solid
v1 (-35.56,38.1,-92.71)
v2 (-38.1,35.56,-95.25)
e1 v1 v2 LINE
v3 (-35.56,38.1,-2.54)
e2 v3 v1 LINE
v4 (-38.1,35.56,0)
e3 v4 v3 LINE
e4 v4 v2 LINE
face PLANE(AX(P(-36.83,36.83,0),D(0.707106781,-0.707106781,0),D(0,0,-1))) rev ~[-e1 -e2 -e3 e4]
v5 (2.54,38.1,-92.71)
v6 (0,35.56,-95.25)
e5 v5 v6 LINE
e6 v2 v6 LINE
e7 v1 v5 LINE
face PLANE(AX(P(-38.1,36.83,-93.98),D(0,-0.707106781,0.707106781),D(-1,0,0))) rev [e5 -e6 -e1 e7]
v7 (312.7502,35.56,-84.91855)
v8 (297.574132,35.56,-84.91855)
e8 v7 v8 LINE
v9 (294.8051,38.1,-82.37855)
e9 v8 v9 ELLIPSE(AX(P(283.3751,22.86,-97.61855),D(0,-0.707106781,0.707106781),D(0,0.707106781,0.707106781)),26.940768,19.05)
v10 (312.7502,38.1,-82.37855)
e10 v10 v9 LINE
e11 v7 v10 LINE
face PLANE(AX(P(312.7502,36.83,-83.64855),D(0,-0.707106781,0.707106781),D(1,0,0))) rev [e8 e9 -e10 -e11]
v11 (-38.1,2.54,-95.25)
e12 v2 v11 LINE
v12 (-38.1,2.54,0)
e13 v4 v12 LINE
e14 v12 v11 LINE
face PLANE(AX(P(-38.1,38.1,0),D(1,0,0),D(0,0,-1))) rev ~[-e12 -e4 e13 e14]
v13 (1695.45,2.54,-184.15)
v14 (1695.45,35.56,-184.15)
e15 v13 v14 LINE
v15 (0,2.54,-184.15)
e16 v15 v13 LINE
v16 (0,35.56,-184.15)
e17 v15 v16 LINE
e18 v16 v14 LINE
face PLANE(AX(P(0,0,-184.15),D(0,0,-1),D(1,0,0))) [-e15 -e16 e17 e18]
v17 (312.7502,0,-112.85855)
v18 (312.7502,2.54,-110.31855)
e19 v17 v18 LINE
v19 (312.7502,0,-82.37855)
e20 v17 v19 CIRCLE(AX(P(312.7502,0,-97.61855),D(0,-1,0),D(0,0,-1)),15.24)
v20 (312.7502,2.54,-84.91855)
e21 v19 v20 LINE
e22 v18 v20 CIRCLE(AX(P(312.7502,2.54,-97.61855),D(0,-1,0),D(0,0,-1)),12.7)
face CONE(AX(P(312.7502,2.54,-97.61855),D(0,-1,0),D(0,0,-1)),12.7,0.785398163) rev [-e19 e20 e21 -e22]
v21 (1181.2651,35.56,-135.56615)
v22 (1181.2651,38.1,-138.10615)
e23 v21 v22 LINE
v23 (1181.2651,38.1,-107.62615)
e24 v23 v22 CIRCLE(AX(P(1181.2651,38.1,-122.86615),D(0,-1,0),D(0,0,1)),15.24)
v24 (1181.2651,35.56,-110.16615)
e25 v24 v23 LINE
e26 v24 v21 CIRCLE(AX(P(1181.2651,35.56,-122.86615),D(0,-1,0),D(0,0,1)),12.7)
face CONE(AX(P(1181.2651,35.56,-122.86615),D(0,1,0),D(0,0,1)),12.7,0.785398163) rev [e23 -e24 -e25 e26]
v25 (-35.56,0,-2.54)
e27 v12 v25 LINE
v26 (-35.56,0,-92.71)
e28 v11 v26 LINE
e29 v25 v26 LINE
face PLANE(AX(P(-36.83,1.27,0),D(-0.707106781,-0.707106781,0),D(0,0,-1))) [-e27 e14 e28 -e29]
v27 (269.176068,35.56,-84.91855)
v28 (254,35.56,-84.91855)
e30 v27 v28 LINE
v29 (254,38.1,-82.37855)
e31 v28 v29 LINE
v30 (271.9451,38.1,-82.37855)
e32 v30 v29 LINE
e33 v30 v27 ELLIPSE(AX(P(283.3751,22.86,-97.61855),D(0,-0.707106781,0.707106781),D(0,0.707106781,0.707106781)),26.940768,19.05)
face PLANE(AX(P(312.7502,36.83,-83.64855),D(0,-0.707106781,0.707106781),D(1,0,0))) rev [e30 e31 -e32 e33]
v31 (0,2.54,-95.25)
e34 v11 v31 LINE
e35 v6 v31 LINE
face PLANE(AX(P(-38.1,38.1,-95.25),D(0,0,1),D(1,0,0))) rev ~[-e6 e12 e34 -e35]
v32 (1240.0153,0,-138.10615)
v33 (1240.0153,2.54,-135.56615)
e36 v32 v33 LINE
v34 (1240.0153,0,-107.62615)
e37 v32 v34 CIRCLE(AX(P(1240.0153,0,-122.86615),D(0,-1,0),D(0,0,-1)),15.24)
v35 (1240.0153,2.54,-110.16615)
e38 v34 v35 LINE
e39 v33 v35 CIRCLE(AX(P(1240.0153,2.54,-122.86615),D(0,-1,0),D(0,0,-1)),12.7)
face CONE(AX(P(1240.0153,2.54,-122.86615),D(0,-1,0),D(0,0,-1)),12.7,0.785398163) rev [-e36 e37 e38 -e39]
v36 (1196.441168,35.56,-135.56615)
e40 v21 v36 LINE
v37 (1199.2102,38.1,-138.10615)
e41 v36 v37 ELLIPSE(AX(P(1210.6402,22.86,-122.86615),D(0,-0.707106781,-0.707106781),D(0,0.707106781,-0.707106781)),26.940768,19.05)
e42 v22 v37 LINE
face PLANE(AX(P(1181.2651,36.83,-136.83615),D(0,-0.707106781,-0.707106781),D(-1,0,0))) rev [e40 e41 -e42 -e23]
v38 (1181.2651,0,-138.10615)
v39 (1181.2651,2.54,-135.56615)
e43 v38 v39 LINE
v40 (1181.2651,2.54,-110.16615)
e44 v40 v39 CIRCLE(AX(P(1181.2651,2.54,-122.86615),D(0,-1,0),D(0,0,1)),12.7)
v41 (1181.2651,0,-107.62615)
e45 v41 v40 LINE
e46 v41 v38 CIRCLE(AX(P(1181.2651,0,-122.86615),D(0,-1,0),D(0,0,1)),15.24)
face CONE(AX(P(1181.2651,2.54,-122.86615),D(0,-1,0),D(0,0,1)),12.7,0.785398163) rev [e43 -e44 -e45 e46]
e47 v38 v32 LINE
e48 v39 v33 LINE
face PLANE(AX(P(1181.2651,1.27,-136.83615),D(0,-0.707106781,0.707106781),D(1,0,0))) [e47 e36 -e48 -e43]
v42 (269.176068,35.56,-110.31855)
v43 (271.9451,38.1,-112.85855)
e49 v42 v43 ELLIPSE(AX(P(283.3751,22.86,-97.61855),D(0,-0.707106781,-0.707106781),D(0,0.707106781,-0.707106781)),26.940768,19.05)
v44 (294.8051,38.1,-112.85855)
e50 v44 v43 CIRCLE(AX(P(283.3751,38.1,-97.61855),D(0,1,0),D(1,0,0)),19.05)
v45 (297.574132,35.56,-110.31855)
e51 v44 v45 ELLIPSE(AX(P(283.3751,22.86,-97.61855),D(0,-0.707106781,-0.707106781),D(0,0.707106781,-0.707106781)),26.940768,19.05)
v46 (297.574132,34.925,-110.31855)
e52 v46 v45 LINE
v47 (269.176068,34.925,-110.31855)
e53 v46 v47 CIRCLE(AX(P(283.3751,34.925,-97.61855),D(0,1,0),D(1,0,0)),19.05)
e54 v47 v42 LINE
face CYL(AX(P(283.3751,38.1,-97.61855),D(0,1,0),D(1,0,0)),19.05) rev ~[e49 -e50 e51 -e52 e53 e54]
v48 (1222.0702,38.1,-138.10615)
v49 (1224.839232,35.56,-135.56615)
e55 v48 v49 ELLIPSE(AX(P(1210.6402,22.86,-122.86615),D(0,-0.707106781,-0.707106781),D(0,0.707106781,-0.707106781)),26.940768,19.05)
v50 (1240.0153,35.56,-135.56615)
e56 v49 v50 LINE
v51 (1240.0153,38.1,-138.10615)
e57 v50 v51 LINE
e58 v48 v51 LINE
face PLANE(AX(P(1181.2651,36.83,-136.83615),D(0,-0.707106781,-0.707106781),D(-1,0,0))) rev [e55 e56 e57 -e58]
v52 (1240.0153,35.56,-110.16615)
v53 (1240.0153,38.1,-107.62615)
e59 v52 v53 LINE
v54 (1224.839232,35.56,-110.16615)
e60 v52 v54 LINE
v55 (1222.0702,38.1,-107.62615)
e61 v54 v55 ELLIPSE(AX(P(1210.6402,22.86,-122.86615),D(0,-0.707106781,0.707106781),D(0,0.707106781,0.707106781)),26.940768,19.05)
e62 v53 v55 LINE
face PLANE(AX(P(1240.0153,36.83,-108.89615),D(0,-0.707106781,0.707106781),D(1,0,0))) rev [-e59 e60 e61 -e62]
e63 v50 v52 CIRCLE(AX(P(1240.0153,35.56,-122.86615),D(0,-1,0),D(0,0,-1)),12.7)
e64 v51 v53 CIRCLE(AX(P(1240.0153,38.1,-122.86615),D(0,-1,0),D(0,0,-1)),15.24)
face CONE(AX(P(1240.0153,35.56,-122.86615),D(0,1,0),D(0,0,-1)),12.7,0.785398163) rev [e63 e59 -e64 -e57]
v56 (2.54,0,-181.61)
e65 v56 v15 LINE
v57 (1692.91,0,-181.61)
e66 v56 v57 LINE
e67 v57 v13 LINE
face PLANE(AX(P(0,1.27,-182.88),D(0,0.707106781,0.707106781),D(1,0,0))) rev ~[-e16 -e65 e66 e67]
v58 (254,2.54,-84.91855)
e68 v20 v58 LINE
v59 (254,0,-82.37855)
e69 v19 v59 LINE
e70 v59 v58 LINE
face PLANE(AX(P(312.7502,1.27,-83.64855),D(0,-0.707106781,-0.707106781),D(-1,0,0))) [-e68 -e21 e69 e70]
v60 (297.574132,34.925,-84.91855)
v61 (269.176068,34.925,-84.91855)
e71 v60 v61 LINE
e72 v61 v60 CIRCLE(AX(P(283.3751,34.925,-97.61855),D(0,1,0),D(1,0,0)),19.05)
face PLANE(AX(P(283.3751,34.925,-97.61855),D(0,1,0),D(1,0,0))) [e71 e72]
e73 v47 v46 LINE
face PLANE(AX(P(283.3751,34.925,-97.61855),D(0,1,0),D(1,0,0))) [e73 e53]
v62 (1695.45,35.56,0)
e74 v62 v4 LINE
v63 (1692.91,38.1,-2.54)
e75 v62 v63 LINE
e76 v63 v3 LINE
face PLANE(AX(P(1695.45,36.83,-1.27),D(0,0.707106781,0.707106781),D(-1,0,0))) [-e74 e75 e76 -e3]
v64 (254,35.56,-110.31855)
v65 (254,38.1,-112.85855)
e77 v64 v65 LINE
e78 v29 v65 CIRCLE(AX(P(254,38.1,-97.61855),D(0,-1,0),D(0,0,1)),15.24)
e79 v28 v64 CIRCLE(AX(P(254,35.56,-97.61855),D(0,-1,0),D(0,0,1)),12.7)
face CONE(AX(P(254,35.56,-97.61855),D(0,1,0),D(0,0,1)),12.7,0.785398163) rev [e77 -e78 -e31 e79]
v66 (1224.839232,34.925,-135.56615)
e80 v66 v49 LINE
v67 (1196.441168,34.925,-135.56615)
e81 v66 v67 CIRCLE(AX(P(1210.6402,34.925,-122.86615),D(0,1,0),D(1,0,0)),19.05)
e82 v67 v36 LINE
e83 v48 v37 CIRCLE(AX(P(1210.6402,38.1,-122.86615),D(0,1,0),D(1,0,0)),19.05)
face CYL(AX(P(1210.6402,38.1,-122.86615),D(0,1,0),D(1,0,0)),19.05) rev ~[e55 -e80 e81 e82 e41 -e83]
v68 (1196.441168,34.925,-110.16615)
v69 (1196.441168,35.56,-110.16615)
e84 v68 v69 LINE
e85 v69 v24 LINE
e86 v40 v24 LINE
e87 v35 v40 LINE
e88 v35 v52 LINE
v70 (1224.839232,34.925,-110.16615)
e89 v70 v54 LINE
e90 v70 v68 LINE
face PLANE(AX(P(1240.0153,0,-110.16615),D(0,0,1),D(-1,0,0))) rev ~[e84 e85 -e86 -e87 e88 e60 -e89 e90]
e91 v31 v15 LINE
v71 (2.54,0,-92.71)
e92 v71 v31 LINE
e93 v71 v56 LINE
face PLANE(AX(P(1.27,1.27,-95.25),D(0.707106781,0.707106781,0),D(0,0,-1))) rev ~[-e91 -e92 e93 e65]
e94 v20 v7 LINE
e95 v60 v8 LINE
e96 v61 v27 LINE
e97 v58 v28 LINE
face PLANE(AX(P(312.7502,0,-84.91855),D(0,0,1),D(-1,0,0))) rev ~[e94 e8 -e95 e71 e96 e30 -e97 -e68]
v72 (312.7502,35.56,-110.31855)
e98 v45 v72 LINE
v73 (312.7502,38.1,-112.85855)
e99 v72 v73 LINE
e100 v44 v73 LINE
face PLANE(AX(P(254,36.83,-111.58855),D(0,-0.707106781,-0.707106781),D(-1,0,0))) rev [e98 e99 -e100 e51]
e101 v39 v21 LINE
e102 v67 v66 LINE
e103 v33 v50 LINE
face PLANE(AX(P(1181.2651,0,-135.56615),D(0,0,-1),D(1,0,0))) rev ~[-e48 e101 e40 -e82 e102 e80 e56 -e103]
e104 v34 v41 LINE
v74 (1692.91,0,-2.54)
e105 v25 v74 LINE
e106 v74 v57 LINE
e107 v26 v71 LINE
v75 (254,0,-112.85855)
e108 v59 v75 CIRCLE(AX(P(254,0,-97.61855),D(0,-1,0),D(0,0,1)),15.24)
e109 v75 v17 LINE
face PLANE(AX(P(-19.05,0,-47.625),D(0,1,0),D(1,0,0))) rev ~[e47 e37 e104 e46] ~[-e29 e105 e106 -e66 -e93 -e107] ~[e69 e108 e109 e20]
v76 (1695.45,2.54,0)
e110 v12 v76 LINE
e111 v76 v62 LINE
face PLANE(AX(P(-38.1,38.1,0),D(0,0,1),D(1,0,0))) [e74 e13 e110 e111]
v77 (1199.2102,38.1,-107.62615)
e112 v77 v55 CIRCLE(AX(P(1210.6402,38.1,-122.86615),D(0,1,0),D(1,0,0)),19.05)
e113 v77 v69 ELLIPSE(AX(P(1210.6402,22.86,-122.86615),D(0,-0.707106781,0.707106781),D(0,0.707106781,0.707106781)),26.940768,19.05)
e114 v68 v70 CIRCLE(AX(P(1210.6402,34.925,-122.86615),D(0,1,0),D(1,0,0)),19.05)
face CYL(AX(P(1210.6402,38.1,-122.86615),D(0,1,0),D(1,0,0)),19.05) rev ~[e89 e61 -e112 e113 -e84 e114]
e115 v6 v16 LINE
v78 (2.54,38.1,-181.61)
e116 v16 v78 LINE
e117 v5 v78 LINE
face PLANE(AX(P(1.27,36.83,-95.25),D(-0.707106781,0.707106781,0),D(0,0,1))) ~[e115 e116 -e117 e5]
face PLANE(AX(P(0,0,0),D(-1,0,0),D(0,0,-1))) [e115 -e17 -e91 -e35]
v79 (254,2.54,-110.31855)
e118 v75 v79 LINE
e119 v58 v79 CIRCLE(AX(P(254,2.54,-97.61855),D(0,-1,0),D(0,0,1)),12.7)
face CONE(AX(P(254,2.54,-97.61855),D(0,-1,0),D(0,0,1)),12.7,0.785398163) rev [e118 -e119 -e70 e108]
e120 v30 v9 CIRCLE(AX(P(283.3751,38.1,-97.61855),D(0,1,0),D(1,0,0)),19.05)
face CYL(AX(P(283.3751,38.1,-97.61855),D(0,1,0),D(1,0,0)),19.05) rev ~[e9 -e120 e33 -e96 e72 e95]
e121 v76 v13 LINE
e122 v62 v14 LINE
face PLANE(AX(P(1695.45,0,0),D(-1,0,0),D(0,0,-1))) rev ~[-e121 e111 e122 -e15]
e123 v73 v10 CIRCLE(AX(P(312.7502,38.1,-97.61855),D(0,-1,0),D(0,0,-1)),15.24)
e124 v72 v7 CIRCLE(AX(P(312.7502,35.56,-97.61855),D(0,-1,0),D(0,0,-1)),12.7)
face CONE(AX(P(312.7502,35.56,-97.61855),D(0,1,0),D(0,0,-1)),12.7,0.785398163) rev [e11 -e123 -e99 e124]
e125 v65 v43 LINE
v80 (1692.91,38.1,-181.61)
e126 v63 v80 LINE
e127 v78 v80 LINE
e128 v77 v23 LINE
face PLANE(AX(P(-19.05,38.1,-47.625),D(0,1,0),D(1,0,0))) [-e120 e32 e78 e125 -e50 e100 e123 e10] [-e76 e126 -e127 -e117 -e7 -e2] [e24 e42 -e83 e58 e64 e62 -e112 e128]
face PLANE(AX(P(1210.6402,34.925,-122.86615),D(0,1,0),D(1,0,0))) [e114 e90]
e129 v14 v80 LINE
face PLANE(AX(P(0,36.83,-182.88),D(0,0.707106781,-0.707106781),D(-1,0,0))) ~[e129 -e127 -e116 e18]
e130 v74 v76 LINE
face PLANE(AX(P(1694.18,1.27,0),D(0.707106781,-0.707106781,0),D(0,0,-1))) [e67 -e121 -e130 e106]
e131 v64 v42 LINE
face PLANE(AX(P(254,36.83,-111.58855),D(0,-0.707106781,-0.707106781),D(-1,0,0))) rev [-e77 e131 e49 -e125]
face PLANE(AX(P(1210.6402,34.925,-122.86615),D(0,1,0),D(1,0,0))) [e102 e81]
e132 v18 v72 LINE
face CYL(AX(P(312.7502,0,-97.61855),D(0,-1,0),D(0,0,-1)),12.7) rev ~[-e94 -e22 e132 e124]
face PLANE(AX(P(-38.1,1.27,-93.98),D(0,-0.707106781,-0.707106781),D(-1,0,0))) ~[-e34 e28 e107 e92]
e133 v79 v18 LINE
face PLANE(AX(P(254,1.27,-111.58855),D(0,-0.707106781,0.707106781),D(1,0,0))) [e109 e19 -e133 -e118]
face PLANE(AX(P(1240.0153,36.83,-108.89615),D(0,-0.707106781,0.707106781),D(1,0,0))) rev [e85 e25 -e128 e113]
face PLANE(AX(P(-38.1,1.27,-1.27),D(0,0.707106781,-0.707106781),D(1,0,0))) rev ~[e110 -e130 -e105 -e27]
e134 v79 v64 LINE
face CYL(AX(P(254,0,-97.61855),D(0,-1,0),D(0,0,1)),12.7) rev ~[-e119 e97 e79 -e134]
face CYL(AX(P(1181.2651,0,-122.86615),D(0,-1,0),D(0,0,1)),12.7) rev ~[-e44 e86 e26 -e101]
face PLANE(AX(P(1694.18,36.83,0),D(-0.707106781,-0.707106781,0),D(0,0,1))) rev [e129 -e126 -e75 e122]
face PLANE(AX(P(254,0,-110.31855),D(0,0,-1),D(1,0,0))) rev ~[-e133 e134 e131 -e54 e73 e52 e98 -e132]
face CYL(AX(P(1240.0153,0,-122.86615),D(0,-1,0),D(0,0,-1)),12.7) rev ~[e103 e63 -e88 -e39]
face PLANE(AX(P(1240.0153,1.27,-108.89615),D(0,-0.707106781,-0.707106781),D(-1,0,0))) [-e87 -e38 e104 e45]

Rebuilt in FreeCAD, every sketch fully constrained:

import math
import FreeCAD as App
import Part
import Sketcher
Q = App.Units.Quantity


def edges_at(feature, points):
    """Names of the edges that pass closest to the given points."""
    edges = feature.Shape.Edges
    near = lambda p: min(range(len(edges)), key=lambda i: edges[i].distToShape(Part.Vertex(*p))[0])
    return sorted({f"Edge{near(p) + 1}" for p in points})


def add_polygon(sketch, points):
    """Adds a closed chain of lines whose ends are joined by coincident constraints."""
    first, n = sketch.GeometryCount, len(points)
    for a, b in zip(points, points[1:] + points[:1]):
        sketch.addGeometry(Part.LineSegment(App.Vector(*a, 0), App.Vector(*b, 0)), False)
    for i in range(n):
        sketch.addConstraint(Sketcher.Constraint("Coincident", first + i, 2, first + (i + 1) % n, 1))

doc = App.newDocument("Part")
body = doc.addObject("PartDesign::Body", "Body")

sketch1 = body.newObject("Sketcher::SketchObject", "Sketch")
sketch1.AttachmentSupport = (doc.getObject("XZ_Plane"), [""])
sketch1.MapMode = "FlatFace"
add_polygon(sketch1, [(0, -184.15), (0, 0), (1695.45, 0), (1695.45, -184.15)])
sketch1.addGeometry(Part.ArcOfCircle(Part.Circle(App.Vector(254, -97.61855, 0), App.Vector(0, 0, 1), 12.7), math.radians(90), math.radians(270)), False)
sketch1.addGeometry(Part.LineSegment(App.Vector(254, -110.31855, 0), App.Vector(312.7502, -110.31855, 0)), False)
sketch1.addGeometry(Part.ArcOfCircle(Part.Circle(App.Vector(312.7502, -97.61855, 0), App.Vector(0, 0, 1), 12.7), math.radians(-90), math.radians(90)), False)
sketch1.addGeometry(Part.LineSegment(App.Vector(312.7502, -84.91855, 0), App.Vector(254, -84.91855, 0)), False)
sketch1.addGeometry(Part.ArcOfCircle(Part.Circle(App.Vector(1181.2651, -122.86615, 0), App.Vector(0, 0, 1), 12.7), math.radians(90), math.radians(270)), False)
sketch1.addGeometry(Part.LineSegment(App.Vector(1181.2651, -135.56615, 0), App.Vector(1240.0153, -135.56615, 0)), False)
sketch1.addGeometry(Part.ArcOfCircle(Part.Circle(App.Vector(1240.0153, -122.86615, 0), App.Vector(0, 0, 1), 12.7), math.radians(-90), math.radians(90)), False)
sketch1.addGeometry(Part.LineSegment(App.Vector(1240.0153, -110.16615, 0), App.Vector(1181.2651, -110.16615, 0)), False)
sketch1.addConstraint([
    Sketcher.Constraint("Tangent", 4, 2, 5, 1),
    Sketcher.Constraint("Tangent", 5, 2, 6, 1),
    Sketcher.Constraint("Tangent", 6, 2, 7, 1),
    Sketcher.Constraint("Tangent", 7, 2, 4, 1),
    Sketcher.Constraint("Tangent", 8, 2, 9, 1),
    Sketcher.Constraint("Tangent", 9, 2, 10, 1),
    Sketcher.Constraint("Tangent", 10, 2, 11, 1),
    Sketcher.Constraint("Tangent", 11, 2, 8, 1),
    Sketcher.Constraint("Vertical", 0),
    Sketcher.Constraint("Horizontal", 1),
    Sketcher.Constraint("Vertical", 2),
    Sketcher.Constraint("Horizontal", 3),
    Sketcher.Constraint("Horizontal", 5),
    Sketcher.Constraint("Horizontal", 7),
    Sketcher.Constraint("Horizontal", 9),
    Sketcher.Constraint("Horizontal", 11),
    Sketcher.Constraint("Coincident", 0, 2, -1, 1),
    Sketcher.Constraint("Equal", 6, 8),
    Sketcher.Constraint("Equal", 7, 9),
    Sketcher.Constraint("Radius", 4, Q("0.5 in")),
    Sketcher.Constraint("DistanceX", -1, 1, 4, 3, Q("10 in")),
    Sketcher.Constraint("DistanceX", 1, 1, 1, 2, Q("66.75 in")),
    Sketcher.Constraint("DistanceY", 0, 1, 0, 2, Q("7.25 in")),
    Sketcher.Constraint("DistanceX", 5, 1, 5, 2, Q("2.313 in")),
    Sketcher.Constraint("DistanceY", 8, 3, 6, 3, Q("0.994 in")),
    Sketcher.Constraint("DistanceX", -1, 1, 8, 3, Q("46.5065 in")),
    Sketcher.Constraint("DistanceY", 4, 3, -1, 1, 97.61855),
])
pad1 = body.newObject("PartDesign::Pad", "Pad")
pad1.Profile = sketch1
pad1.Length = Q("1.5 in")
pad1.Reversed = True

sketch2 = body.newObject("Sketcher::SketchObject", "Sketch001")
sketch2.AttachmentSupport = (doc.getObject("XZ_Plane"), [""])
sketch2.MapMode = "FlatFace"
sketch2.AttachmentOffset = App.Placement(App.Vector(0, 0, -1.5 * 25.4), App.Rotation())
add_polygon(sketch2, [(-38.1, -95.25), (-38.1, 0), (0, 0), (0, -95.25)])
sketch2.addConstraint([
    Sketcher.Constraint("Vertical", 0),
    Sketcher.Constraint("Horizontal", 1),
    Sketcher.Constraint("Vertical", 2),
    Sketcher.Constraint("Horizontal", 3),
    Sketcher.Constraint("Coincident", 1, 2, -1, 1),
    Sketcher.Constraint("DistanceX", 1, 1, 1, 2, Q("1.5 in")),
    Sketcher.Constraint("DistanceY", 0, 1, 0, 2, Q("3.75 in")),
])
pad2 = body.newObject("PartDesign::Pad", "Pad001")
pad2.Profile = sketch2
pad2.Length = Q("1.5 in")
doc.recompute()

chamfer = body.newObject("PartDesign::Chamfer", "Chamfer")
chamfer.Base = (pad2, edges_at(pad2, [
    (1695.45, 38.1, -92.075),
    (1252.715, 38.1, -122.866),
    (847.725, 38.1, -184.15),
    (1210.64, 38.1, -135.566),
    (1168.565, 38.1, -122.866),
    (1210.64, 38.1, -110.166),
    (325.45, 38.1, -97.619),
    (283.375, 38.1, -110.319),
    (241.3, 38.1, -97.619),
    (283.375, 38.1, -84.919),
    (-19.05, 38.1, -95.25),
    (-38.1, 38.1, -47.625),
    (0, 38.1, -139.7),
    (828.675, 38.1, 0),
]))
chamfer.Size = Q("0.1 in")
doc.recompute()

chamfer2 = body.newObject("PartDesign::Chamfer", "Chamfer001")
chamfer2.Base = (chamfer, edges_at(chamfer, [
    (1252.715, 0, -122.866),
    (1210.64, 0, -135.566),
    (1168.565, 0, -122.866),
    (1210.64, 0, -110.166),
    (325.45, 0, -97.619),
    (283.375, 0, -110.319),
    (241.3, 0, -97.619),
    (283.375, 0, -84.919),
    (-38.1, 0, -47.625),
    (-19.05, 0, -95.25),
    (847.725, 0, -184.15),
    (1695.45, 0, -92.075),
    (828.675, 0, 0),
    (0, 0, -139.7),
]))
chamfer2.Size = Q("0.1 in")

sketch3 = body.newObject("Sketcher::SketchObject", "Sketch002")
sketch3.AttachmentSupport = (doc.getObject("XZ_Plane"), [""])
sketch3.MapMode = "FlatFace"
sketch3.AttachmentOffset = App.Placement(App.Vector(0, 0, -1.5 * 25.4), App.Rotation())
sketch3.addGeometry([
    Part.Circle(App.Vector(1210.6402, -122.86615, 0), App.Vector(0, 0, 1), 19.05),
    Part.Circle(App.Vector(283.3751, -97.61855, 0), App.Vector(0, 0, 1), 19.05),
], False)
sketch3.addConstraint([
    Sketcher.Constraint("Equal", 0, 1),
    Sketcher.Constraint("Diameter", 0, Q("1.5 in")),
    Sketcher.Constraint("DistanceX", -1, 1, 0, 3, Q("47.663 in")),
    Sketcher.Constraint("DistanceY", 0, 3, 1, 3, Q("0.994 in")),
    Sketcher.Constraint("DistanceX", -1, 1, 1, 3, Q("11.1565 in")),
    Sketcher.Constraint("DistanceY", 0, 3, -1, 1, 122.86615),
])
pocket1 = body.newObject("PartDesign::Pocket", "Pocket")
pocket1.Profile = sketch3
pocket1.Length = Q("0.125 in")
pocket1.Reversed = True

doc.recompute()
